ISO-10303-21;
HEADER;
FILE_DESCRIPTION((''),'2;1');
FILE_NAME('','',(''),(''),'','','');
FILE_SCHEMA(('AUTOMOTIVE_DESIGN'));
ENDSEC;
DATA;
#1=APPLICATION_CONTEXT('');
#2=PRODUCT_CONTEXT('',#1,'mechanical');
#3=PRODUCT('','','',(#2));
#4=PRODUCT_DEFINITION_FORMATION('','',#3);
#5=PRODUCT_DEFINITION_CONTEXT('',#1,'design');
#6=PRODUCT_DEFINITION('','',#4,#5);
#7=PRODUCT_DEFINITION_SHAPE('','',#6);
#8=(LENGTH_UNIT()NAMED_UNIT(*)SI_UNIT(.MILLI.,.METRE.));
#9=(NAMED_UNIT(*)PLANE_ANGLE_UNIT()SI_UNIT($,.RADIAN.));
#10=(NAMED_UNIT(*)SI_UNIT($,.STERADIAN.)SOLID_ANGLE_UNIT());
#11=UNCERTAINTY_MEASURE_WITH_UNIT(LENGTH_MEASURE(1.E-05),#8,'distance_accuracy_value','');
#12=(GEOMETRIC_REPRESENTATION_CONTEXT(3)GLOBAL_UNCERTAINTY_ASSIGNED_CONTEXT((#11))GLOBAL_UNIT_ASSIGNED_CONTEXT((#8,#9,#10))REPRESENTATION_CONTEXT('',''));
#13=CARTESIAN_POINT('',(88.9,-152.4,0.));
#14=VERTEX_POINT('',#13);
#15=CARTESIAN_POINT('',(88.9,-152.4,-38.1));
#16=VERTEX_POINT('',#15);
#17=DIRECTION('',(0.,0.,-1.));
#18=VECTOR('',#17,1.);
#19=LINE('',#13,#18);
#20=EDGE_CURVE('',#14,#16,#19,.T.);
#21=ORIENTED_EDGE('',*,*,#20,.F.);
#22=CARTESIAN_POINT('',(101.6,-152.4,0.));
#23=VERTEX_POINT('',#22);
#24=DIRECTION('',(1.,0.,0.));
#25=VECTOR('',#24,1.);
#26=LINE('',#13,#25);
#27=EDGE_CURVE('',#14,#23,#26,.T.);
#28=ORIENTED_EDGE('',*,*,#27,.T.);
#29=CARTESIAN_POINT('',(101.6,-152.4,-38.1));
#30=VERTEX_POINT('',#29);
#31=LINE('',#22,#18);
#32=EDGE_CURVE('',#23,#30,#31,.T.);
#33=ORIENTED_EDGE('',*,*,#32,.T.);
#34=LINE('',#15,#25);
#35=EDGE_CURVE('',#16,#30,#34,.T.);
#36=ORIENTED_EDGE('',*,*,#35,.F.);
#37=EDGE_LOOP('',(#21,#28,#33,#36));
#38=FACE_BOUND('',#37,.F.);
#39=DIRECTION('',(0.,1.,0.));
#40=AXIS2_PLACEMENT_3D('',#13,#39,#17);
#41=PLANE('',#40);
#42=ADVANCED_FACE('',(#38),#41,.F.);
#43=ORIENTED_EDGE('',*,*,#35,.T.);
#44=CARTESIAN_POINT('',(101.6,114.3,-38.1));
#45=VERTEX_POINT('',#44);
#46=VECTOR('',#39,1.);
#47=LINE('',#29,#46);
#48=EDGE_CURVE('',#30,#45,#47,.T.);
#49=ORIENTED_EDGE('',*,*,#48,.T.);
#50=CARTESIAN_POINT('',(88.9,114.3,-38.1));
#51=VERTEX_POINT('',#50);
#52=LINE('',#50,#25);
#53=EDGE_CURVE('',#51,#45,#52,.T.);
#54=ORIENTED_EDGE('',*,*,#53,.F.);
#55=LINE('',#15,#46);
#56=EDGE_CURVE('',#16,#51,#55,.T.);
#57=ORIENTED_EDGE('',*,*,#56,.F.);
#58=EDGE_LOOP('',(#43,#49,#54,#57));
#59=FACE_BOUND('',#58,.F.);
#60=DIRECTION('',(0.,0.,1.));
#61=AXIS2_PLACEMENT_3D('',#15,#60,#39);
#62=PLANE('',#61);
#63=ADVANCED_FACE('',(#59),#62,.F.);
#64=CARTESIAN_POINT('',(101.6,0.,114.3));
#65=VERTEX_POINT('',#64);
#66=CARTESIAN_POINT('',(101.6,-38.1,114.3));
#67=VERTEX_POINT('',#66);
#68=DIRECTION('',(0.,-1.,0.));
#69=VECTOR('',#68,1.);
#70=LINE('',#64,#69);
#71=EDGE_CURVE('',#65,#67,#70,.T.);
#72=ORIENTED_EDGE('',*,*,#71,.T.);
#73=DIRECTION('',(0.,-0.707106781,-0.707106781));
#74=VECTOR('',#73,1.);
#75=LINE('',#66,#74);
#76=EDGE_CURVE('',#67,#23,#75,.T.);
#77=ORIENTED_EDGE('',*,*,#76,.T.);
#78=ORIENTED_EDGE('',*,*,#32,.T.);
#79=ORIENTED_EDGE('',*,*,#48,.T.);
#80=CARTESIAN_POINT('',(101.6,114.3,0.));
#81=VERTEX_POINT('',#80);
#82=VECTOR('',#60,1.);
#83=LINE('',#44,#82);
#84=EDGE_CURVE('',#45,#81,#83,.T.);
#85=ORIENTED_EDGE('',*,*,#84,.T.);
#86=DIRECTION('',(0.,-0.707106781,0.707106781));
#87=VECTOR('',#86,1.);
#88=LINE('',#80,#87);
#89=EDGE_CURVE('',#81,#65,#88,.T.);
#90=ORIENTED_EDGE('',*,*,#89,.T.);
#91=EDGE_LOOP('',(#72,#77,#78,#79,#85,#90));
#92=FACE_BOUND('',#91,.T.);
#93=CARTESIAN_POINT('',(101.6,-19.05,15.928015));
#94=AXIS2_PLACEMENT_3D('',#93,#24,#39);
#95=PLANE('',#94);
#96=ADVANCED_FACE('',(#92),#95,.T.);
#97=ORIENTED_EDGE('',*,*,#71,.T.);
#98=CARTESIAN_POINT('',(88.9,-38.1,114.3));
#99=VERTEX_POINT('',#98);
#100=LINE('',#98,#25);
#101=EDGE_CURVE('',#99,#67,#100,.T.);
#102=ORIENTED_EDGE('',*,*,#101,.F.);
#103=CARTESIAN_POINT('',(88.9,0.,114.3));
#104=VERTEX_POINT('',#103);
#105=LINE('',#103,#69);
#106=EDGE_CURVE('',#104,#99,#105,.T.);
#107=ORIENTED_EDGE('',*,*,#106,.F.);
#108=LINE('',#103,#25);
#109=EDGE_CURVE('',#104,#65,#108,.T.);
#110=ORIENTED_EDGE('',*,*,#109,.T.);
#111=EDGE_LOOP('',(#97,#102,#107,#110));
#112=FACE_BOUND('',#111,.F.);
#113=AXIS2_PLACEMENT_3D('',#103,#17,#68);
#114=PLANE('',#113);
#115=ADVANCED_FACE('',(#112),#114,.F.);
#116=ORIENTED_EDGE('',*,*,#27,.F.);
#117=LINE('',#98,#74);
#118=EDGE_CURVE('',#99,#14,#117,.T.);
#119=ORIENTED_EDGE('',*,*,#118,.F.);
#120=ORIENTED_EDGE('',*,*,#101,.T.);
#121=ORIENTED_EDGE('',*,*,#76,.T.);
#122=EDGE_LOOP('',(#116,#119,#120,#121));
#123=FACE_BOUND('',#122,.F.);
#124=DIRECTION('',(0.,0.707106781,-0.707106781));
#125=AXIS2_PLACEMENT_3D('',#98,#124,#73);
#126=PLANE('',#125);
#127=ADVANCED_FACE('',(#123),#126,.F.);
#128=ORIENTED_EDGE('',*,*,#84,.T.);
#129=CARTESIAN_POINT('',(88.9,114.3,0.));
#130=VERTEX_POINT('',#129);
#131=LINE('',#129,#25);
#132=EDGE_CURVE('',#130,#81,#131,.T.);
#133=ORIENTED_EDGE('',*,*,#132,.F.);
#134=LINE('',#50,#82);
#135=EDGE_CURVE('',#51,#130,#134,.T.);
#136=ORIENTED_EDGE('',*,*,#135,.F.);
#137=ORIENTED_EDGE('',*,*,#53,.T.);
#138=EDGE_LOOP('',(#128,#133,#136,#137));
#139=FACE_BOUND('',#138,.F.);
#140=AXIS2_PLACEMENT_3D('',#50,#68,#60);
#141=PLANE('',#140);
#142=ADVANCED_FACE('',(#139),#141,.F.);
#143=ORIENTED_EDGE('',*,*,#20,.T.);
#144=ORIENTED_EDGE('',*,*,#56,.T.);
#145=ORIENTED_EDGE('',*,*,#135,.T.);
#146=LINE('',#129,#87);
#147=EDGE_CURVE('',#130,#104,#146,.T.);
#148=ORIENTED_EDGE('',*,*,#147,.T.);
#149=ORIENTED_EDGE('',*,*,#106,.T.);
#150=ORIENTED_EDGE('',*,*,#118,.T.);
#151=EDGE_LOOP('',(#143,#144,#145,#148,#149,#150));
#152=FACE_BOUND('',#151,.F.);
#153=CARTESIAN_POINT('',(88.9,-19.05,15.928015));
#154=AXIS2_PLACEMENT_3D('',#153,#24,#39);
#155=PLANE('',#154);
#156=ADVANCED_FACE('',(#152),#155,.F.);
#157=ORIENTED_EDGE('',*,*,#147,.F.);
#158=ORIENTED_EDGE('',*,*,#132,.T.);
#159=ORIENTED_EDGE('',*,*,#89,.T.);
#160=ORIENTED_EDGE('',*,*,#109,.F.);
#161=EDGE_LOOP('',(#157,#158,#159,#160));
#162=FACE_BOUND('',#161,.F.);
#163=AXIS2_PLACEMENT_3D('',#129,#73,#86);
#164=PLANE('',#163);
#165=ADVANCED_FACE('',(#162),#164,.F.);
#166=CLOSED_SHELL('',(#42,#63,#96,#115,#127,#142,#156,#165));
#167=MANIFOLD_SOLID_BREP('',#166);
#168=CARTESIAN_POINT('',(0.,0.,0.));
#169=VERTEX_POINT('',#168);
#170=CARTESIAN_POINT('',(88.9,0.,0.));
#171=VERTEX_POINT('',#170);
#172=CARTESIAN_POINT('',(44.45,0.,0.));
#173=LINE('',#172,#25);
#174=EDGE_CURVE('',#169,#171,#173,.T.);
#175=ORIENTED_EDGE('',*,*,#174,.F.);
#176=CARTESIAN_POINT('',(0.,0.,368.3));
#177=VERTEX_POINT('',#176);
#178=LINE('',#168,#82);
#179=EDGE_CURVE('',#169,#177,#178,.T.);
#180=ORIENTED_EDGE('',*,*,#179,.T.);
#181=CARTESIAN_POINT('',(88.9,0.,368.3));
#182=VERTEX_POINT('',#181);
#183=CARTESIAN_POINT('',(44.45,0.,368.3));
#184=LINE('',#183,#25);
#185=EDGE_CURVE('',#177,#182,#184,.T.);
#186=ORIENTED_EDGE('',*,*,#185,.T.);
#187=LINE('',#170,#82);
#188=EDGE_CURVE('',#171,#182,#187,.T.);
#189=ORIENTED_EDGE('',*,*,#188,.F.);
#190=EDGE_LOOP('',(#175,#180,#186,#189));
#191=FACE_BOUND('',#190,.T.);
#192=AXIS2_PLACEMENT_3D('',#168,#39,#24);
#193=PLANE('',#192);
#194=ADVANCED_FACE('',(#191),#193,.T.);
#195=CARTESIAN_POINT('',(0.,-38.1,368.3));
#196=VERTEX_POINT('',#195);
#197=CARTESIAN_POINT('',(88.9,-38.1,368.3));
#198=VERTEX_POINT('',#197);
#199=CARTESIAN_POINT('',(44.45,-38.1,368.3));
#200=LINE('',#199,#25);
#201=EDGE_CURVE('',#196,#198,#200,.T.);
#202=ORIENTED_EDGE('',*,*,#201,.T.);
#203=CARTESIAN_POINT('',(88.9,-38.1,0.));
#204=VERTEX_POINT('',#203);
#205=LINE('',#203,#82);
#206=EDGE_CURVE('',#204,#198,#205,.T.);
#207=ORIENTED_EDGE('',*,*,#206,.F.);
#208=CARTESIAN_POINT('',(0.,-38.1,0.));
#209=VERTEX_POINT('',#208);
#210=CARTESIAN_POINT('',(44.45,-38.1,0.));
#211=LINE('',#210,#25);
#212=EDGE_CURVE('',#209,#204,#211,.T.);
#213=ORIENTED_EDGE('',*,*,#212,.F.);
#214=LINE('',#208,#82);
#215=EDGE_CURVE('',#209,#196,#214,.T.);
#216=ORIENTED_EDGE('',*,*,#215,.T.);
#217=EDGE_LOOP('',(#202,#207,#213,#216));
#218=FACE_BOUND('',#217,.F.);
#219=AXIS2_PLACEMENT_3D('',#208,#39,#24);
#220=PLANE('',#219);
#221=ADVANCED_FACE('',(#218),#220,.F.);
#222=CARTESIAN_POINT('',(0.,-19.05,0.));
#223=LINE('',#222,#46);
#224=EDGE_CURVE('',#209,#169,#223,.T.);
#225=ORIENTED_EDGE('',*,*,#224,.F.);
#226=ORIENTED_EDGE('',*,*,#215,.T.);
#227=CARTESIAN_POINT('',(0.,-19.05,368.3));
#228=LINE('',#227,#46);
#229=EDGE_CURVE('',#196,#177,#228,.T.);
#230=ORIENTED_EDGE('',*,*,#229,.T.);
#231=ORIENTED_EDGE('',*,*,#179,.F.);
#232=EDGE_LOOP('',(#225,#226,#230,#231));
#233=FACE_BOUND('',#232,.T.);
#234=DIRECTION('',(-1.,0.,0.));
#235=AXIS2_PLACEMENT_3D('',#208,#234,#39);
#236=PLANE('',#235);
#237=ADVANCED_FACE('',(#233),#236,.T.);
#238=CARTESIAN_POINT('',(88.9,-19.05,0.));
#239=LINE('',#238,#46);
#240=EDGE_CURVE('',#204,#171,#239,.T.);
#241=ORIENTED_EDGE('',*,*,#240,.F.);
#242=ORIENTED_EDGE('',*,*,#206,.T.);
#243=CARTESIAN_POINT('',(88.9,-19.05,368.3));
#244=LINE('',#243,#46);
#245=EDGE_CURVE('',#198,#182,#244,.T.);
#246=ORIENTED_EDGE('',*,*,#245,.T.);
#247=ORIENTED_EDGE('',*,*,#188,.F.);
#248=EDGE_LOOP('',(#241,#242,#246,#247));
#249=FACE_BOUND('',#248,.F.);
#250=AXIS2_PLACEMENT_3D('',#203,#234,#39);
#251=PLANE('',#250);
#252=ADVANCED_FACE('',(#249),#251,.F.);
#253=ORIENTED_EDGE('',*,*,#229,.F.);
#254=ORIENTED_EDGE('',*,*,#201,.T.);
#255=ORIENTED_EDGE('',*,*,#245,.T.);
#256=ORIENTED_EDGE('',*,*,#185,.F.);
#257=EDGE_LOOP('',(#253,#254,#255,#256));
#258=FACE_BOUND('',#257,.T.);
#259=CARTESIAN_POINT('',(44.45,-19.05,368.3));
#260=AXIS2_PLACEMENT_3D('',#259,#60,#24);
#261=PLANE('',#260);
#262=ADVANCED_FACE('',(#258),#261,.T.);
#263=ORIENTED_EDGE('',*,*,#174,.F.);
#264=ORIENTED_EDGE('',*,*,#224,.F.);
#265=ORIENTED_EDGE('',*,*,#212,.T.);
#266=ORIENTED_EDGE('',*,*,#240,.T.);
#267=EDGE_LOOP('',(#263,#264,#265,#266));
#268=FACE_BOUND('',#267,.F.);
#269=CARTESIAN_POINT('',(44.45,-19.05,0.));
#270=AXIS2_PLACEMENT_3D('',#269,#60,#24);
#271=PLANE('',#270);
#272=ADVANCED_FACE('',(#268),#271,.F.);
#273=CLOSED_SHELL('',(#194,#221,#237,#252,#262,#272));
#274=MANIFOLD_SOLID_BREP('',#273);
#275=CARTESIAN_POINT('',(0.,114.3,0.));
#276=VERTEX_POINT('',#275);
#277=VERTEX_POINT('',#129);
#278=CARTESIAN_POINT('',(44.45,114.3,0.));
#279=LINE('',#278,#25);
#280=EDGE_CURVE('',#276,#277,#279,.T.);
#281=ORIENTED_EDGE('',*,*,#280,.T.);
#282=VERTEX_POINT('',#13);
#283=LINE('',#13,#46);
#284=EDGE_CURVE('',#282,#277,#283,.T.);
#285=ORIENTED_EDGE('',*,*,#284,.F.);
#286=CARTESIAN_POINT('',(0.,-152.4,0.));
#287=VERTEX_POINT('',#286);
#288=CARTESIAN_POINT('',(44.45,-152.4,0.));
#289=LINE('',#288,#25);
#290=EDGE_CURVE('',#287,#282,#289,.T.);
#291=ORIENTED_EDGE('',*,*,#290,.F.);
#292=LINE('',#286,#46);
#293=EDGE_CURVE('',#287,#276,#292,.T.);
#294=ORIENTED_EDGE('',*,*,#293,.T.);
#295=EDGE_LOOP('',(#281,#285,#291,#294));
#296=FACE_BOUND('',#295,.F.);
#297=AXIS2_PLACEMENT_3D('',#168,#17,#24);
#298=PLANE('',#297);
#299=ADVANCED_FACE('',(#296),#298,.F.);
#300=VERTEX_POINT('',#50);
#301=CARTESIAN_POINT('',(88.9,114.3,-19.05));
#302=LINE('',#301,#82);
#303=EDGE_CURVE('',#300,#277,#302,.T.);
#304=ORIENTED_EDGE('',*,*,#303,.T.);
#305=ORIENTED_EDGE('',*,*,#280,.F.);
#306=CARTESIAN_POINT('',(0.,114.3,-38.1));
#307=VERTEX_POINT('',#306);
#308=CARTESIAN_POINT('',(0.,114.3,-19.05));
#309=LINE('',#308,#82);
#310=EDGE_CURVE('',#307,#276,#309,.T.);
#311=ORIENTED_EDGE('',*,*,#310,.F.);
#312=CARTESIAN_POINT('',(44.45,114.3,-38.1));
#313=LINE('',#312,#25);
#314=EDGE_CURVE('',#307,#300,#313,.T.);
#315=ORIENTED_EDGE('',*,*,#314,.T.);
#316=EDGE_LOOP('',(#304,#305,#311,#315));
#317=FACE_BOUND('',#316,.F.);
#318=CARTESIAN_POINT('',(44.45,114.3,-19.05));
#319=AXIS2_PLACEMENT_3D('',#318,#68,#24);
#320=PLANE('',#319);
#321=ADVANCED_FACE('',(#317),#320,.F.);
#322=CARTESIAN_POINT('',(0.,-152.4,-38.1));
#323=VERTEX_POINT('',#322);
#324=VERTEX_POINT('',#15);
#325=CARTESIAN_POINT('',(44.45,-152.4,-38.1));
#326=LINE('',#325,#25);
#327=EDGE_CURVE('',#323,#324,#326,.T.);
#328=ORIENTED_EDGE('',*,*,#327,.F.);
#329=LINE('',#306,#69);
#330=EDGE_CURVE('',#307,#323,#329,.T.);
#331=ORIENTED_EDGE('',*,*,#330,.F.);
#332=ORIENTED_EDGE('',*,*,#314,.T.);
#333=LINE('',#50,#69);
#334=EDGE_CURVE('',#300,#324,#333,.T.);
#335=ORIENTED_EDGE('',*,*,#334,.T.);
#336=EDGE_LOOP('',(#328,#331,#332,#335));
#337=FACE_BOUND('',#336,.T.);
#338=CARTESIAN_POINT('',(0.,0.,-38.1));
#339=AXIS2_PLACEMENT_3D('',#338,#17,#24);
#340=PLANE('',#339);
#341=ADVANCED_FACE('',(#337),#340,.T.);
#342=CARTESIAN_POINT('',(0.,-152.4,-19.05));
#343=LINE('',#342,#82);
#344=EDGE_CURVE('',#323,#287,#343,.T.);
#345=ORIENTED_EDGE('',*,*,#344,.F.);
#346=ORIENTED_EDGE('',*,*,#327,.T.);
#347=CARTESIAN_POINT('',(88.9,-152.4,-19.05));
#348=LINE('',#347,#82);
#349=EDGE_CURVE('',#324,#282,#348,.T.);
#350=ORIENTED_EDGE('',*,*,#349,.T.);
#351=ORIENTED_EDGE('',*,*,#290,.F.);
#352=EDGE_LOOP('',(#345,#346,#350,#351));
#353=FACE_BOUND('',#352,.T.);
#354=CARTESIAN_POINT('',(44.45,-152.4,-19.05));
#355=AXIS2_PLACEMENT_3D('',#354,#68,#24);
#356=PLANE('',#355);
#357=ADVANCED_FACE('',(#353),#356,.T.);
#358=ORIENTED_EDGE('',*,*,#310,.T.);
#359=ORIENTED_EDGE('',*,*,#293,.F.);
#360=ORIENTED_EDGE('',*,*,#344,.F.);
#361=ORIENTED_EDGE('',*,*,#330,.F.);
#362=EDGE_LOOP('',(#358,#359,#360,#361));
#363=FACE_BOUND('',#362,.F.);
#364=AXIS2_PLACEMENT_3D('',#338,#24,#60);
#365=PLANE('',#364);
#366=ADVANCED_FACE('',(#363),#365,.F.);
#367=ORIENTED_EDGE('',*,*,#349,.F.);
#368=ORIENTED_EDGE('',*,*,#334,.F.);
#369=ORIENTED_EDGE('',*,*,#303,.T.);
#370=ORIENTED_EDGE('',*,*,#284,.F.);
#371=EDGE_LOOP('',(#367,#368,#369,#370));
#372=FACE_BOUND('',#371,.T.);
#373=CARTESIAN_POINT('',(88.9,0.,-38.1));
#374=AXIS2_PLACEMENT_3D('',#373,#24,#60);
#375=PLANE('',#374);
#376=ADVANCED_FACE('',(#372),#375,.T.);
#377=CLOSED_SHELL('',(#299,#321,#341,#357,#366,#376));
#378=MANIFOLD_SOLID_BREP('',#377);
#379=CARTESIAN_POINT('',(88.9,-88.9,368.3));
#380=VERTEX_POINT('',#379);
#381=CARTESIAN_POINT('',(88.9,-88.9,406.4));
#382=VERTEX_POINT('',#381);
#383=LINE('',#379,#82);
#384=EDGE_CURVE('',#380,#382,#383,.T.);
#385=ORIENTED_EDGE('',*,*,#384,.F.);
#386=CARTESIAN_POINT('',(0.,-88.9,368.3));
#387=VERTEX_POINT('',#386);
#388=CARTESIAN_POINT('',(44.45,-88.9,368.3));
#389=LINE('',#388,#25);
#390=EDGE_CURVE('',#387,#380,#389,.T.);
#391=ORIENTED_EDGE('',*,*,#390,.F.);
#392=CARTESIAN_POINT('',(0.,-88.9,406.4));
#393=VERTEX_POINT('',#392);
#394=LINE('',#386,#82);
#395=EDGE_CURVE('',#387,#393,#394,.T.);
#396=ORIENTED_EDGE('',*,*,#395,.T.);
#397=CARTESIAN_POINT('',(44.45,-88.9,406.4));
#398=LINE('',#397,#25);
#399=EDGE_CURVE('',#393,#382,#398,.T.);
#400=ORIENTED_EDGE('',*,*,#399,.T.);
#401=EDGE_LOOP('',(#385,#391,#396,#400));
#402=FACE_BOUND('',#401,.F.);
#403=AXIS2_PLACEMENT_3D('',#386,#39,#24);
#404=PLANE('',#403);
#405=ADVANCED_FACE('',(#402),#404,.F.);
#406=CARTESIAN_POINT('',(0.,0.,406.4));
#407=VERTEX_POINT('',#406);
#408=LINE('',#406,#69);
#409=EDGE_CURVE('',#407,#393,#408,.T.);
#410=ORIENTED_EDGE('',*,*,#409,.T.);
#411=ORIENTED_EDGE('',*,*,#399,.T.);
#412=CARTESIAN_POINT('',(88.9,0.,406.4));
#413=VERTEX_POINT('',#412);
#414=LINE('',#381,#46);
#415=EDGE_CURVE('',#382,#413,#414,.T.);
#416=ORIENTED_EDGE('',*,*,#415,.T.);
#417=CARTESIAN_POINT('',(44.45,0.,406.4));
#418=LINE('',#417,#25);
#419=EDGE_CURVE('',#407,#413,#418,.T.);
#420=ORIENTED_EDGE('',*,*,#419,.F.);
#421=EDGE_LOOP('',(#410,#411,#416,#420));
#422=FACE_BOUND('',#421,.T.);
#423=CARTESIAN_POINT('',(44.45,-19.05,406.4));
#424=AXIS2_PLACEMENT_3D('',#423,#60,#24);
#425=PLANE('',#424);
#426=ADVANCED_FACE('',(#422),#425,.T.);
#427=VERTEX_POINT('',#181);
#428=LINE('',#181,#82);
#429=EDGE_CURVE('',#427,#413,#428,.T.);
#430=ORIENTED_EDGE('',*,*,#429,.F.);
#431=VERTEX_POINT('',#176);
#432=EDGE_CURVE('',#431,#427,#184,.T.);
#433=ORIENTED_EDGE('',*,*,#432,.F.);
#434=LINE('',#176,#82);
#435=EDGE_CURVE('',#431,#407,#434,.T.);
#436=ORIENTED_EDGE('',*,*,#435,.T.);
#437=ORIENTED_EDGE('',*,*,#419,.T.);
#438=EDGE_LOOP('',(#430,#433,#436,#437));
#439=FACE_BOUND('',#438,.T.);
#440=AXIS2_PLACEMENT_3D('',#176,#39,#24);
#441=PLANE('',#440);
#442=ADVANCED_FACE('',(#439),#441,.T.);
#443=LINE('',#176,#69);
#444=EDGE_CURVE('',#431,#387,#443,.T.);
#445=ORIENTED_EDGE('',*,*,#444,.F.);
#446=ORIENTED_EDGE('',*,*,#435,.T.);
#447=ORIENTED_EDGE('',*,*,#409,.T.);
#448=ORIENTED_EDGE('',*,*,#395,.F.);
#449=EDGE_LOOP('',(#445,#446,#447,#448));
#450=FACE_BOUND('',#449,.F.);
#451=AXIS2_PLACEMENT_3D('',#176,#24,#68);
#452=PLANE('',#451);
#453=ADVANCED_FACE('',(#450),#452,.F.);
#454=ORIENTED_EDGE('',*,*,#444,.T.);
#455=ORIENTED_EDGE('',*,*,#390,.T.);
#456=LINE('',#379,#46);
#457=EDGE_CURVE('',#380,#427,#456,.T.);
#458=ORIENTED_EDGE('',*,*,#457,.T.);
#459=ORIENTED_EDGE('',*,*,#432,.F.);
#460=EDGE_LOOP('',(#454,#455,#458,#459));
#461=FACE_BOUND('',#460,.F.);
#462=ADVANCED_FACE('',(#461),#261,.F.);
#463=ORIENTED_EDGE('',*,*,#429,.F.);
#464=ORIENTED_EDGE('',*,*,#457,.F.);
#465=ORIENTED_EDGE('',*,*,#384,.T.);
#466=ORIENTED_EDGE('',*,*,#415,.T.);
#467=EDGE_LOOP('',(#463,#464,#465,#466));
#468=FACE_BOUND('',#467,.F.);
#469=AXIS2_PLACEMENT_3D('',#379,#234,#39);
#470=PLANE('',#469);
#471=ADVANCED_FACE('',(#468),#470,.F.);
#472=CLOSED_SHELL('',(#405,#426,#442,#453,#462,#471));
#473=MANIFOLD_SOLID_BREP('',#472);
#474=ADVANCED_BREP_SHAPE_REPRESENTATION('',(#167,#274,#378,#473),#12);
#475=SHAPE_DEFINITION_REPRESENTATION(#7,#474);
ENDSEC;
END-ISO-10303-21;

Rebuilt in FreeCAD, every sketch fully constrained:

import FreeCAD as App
import Part
import Sketcher

V = App.Vector
Q = App.Units.Quantity


def add_polygon(sketch, points):
    """Adds a closed chain of lines whose ends are joined by coincident constraints."""
    first, n = sketch.GeometryCount, len(points)
    for a, b in zip(points, points[1:] + points[:1]):
        sketch.addGeometry(Part.LineSegment(App.Vector(*a, 0), App.Vector(*b, 0)), False)
    for i in range(n):
        sketch.addConstraint(Sketcher.Constraint("Coincident", first + i, 2, first + (i + 1) % n, 1))

doc = App.newDocument("Part")
body = doc.addObject("PartDesign::Body", "Body")

# Sketch on XY plane
sketch1 = doc.addObject("Sketcher::SketchObject", "Sketch")
body.addObject(sketch1)
sketch1.AttachmentSupport = (doc.XY_Plane, [""])
sketch1.MapMode = "FlatFace"
add_polygon(sketch1, [(0, 0), (0, -38), (89, -38), (89, 0)])  # lines 0-3
sketch1.addConstraint([
    Sketcher.Constraint("Vertical", 0),
    Sketcher.Constraint("Horizontal", 1),
    Sketcher.Constraint("Vertical", 2),
    Sketcher.Constraint("Horizontal", 3),
    Sketcher.Constraint("Coincident", 3, 2, -1, 1),
    Sketcher.Constraint("DistanceX", 1, 1, 1, 2, Q("3.5 in")),
    Sketcher.Constraint("DistanceY", 0, 2, 0, 1, Q("1.5 in")),
])
pad1 = doc.addObject("PartDesign::Pad", "Pad")
body.addObject(pad1)
pad1.Profile = sketch1
pad1.Length = Q("14.5 in")
body2 = doc.addObject("PartDesign::Body", "Body001")

# Sketch on XY plane
sketch2 = doc.addObject("Sketcher::SketchObject", "Sketch001")
body2.addObject(sketch2)
sketch2.AttachmentSupport = (doc.getObject("XY_Plane001"), [""])
sketch2.MapMode = "FlatFace"
sketch2.AttachmentOffset = App.Placement(V(0, 0, 14.5 * 25.4), App.Rotation())
add_polygon(sketch2, [(0, 0), (0, -89), (89, -89), (89, 0)])  # lines 0-3
sketch2.addConstraint([
    Sketcher.Constraint("Vertical", 0),
    Sketcher.Constraint("Horizontal", 1),
    Sketcher.Constraint("Vertical", 2),
    Sketcher.Constraint("Horizontal", 3),
    Sketcher.Constraint("Coincident", 3, 2, -1, 1),
    Sketcher.Constraint("Equal", 3, 0),
    Sketcher.Constraint("DistanceX", 1, 1, 1, 2, Q("3.5 in")),
])
pad2 = doc.addObject("PartDesign::Pad", "Pad001")
body2.addObject(pad2)
pad2.Profile = sketch2
pad2.Length = Q("1.5 in")
body3 = doc.addObject("PartDesign::Body", "Body002")

# Sketch on XZ plane
sketch3 = doc.addObject("Sketcher::SketchObject", "Sketch002")
body3.addObject(sketch3)
sketch3.AttachmentSupport = (doc.getObject("XZ_Plane002"), [""])
sketch3.MapMode = "FlatFace"
add_polygon(sketch3, [(0, 0), (0, -38), (89, -38), (89, 0)])  # lines 0-3
sketch3.addConstraint([
    Sketcher.Constraint("Vertical", 0),
    Sketcher.Constraint("Horizontal", 1),
    Sketcher.Constraint("Vertical", 2),
    Sketcher.Constraint("Horizontal", 3),
    Sketcher.Constraint("Coincident", 3, 2, -1, 1),
    Sketcher.Constraint("DistanceX", 1, 1, 1, 2, Q("3.5 in")),
    Sketcher.Constraint("DistanceY", 0, 2, 0, 1, Q("1.5 in")),
])
pad3 = doc.addObject("PartDesign::Pad", "Pad002")
body3.addObject(pad3)
pad3.Profile = sketch3
pad3.Type = "TwoLengths"
pad3.Length = Q("6 in")
pad3.Length2 = Q("4.5 in")
body4 = doc.addObject("PartDesign::Body", "Body003")

# Sketch on YZ plane
sketch4 = doc.addObject("Sketcher::SketchObject", "Sketch003")
body4.addObject(sketch4)
sketch4.AttachmentSupport = (doc.getObject("YZ_Plane003"), [""])
sketch4.MapMode = "FlatFace"
sketch4.AttachmentOffset = App.Placement(V(0, 0, 3.5 * 25.4), App.Rotation())
add_polygon(sketch4, [(-152, 0), (-152, -38), (114, -38), (114, 0), (0, 114), (-38, 114)])  # lines 0-5
sketch4.addConstraint([
    Sketcher.Constraint("Vertical", 0),
    Sketcher.Constraint("Horizontal", 1),
    Sketcher.Constraint("Vertical", 2),
    Sketcher.Constraint("Horizontal", 4),
    Sketcher.Constraint("PointOnObject", 2, 2, -1),
    Sketcher.Constraint("PointOnObject", 3, 2, -2),
    Sketcher.Constraint("PointOnObject", 5, 2, -1),
    Sketcher.Constraint("Perpendicular", 3, 5),
    Sketcher.Constraint("Equal", 4, 0),
    Sketcher.Constraint("Equal", 3, 5),
    Sketcher.Constraint("DistanceX", 1, 1, 1, 2, Q("10.5 in")),
    Sketcher.Constraint("DistanceX", 4, 2, 4, 1, Q("1.5 in")),
])
pad4 = doc.addObject("PartDesign::Pad", "Pad003")
body4.addObject(pad4)
pad4.Profile = sketch4
pad4.Length = Q("0.5 in")

doc.recompute()
